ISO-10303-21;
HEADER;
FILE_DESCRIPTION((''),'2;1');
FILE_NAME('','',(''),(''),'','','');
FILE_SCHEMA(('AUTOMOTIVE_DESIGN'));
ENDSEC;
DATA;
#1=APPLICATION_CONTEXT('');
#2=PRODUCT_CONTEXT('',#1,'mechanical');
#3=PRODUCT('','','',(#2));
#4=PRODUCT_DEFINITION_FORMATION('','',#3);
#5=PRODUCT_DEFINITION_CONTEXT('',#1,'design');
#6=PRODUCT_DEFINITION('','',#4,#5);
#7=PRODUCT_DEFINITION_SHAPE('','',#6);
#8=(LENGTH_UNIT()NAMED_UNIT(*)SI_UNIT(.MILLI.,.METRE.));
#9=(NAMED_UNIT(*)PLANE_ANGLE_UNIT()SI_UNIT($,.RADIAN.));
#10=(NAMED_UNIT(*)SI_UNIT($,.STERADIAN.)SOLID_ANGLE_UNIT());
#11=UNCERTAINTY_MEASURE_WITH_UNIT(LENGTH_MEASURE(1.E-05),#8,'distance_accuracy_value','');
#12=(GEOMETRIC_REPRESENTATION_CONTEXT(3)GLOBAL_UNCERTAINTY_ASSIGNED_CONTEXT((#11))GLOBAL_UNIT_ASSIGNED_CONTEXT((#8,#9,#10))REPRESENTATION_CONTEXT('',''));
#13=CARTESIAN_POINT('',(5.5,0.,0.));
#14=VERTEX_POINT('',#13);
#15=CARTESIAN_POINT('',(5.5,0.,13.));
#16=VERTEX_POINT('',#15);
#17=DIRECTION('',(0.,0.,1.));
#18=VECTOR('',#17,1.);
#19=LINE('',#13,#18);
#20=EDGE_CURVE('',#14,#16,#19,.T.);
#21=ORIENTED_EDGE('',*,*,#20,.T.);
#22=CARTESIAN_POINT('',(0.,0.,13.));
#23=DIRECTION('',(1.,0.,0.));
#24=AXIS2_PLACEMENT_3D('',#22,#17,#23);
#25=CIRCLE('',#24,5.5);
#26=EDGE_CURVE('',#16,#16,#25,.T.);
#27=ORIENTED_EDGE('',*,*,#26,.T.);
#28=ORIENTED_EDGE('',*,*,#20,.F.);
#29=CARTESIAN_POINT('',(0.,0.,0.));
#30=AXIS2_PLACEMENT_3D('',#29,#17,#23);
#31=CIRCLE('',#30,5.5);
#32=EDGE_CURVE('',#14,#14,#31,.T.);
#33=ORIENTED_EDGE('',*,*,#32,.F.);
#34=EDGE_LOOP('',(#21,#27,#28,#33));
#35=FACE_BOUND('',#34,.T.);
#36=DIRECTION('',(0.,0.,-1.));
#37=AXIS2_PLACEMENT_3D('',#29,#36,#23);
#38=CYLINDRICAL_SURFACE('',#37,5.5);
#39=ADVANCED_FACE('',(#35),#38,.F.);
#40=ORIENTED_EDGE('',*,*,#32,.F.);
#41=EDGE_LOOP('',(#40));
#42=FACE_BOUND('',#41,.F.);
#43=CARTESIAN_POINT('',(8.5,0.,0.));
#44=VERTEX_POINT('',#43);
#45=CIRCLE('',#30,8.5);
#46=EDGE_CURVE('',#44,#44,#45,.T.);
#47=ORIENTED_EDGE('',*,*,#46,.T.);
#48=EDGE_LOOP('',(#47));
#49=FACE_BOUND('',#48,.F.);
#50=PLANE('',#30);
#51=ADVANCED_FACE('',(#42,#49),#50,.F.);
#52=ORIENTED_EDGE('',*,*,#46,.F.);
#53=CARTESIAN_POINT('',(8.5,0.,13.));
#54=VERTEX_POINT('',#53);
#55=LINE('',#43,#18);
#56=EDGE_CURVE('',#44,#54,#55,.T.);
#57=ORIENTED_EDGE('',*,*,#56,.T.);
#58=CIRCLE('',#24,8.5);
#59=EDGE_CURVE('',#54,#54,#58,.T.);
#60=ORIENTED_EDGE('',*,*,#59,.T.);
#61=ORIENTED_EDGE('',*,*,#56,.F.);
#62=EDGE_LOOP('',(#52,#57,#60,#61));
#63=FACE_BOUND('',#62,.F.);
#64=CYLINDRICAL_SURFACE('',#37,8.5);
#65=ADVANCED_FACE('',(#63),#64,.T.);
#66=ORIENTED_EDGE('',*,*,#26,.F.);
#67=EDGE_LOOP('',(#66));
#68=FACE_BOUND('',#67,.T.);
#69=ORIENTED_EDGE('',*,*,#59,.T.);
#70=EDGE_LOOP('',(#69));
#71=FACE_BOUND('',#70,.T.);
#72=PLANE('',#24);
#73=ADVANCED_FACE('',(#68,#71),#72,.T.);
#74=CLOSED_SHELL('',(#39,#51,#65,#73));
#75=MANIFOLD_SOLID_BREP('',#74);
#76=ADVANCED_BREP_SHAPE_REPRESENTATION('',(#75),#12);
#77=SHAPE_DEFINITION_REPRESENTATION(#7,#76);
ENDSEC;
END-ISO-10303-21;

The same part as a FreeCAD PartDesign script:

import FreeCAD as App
import Part
import Sketcher

doc = App.newDocument("Part")
params = doc.addObject("Spreadsheet::Sheet", "Params")
for row, (alias, value) in enumerate([
    ("sketch1_diameter", "17 mm"),
    ("sketch1_diameter2", "11 mm"),
    ("pad1_length", "13 mm"),
], start=1):
    params.set(f"A{row}", alias)
    params.set(f"B{row}", "=" + value)
    params.setAlias(f"B{row}", alias)

body = doc.addObject("PartDesign::Body", "Body")

sketch1 = body.newObject("Sketcher::SketchObject", "Sketch")
sketch1.AttachmentSupport = (doc.getObject("XY_Plane"), [""])
sketch1.MapMode = "FlatFace"
sketch1.addGeometry(Part.Circle(App.Vector(0, 0, 0), App.Vector(0, 0, 1), 8), False)
sketch1.addGeometry(Part.Circle(App.Vector(0, 0, 0), App.Vector(0, 0, 1), 6), False)
sketch1.addConstraint(Sketcher.Constraint("Coincident", 0, 3, -1, 1))
sketch1.addConstraint(Sketcher.Constraint("Coincident", 1, 3, -1, 1))
sketch1.addConstraint(Sketcher.Constraint("Diameter", 0, 17.0))
sketch1.addConstraint(Sketcher.Constraint("Diameter", 1, 11.0))
sketch1.setExpression("Constraints[2]", "Params.sketch1_diameter")
sketch1.setExpression("Constraints[3]", "Params.sketch1_diameter2")
pad1 = body.newObject("PartDesign::Pad", "Pad")
pad1.Profile = sketch1
pad1.setExpression("Length", "Params.pad1_length")

doc.recompute()
